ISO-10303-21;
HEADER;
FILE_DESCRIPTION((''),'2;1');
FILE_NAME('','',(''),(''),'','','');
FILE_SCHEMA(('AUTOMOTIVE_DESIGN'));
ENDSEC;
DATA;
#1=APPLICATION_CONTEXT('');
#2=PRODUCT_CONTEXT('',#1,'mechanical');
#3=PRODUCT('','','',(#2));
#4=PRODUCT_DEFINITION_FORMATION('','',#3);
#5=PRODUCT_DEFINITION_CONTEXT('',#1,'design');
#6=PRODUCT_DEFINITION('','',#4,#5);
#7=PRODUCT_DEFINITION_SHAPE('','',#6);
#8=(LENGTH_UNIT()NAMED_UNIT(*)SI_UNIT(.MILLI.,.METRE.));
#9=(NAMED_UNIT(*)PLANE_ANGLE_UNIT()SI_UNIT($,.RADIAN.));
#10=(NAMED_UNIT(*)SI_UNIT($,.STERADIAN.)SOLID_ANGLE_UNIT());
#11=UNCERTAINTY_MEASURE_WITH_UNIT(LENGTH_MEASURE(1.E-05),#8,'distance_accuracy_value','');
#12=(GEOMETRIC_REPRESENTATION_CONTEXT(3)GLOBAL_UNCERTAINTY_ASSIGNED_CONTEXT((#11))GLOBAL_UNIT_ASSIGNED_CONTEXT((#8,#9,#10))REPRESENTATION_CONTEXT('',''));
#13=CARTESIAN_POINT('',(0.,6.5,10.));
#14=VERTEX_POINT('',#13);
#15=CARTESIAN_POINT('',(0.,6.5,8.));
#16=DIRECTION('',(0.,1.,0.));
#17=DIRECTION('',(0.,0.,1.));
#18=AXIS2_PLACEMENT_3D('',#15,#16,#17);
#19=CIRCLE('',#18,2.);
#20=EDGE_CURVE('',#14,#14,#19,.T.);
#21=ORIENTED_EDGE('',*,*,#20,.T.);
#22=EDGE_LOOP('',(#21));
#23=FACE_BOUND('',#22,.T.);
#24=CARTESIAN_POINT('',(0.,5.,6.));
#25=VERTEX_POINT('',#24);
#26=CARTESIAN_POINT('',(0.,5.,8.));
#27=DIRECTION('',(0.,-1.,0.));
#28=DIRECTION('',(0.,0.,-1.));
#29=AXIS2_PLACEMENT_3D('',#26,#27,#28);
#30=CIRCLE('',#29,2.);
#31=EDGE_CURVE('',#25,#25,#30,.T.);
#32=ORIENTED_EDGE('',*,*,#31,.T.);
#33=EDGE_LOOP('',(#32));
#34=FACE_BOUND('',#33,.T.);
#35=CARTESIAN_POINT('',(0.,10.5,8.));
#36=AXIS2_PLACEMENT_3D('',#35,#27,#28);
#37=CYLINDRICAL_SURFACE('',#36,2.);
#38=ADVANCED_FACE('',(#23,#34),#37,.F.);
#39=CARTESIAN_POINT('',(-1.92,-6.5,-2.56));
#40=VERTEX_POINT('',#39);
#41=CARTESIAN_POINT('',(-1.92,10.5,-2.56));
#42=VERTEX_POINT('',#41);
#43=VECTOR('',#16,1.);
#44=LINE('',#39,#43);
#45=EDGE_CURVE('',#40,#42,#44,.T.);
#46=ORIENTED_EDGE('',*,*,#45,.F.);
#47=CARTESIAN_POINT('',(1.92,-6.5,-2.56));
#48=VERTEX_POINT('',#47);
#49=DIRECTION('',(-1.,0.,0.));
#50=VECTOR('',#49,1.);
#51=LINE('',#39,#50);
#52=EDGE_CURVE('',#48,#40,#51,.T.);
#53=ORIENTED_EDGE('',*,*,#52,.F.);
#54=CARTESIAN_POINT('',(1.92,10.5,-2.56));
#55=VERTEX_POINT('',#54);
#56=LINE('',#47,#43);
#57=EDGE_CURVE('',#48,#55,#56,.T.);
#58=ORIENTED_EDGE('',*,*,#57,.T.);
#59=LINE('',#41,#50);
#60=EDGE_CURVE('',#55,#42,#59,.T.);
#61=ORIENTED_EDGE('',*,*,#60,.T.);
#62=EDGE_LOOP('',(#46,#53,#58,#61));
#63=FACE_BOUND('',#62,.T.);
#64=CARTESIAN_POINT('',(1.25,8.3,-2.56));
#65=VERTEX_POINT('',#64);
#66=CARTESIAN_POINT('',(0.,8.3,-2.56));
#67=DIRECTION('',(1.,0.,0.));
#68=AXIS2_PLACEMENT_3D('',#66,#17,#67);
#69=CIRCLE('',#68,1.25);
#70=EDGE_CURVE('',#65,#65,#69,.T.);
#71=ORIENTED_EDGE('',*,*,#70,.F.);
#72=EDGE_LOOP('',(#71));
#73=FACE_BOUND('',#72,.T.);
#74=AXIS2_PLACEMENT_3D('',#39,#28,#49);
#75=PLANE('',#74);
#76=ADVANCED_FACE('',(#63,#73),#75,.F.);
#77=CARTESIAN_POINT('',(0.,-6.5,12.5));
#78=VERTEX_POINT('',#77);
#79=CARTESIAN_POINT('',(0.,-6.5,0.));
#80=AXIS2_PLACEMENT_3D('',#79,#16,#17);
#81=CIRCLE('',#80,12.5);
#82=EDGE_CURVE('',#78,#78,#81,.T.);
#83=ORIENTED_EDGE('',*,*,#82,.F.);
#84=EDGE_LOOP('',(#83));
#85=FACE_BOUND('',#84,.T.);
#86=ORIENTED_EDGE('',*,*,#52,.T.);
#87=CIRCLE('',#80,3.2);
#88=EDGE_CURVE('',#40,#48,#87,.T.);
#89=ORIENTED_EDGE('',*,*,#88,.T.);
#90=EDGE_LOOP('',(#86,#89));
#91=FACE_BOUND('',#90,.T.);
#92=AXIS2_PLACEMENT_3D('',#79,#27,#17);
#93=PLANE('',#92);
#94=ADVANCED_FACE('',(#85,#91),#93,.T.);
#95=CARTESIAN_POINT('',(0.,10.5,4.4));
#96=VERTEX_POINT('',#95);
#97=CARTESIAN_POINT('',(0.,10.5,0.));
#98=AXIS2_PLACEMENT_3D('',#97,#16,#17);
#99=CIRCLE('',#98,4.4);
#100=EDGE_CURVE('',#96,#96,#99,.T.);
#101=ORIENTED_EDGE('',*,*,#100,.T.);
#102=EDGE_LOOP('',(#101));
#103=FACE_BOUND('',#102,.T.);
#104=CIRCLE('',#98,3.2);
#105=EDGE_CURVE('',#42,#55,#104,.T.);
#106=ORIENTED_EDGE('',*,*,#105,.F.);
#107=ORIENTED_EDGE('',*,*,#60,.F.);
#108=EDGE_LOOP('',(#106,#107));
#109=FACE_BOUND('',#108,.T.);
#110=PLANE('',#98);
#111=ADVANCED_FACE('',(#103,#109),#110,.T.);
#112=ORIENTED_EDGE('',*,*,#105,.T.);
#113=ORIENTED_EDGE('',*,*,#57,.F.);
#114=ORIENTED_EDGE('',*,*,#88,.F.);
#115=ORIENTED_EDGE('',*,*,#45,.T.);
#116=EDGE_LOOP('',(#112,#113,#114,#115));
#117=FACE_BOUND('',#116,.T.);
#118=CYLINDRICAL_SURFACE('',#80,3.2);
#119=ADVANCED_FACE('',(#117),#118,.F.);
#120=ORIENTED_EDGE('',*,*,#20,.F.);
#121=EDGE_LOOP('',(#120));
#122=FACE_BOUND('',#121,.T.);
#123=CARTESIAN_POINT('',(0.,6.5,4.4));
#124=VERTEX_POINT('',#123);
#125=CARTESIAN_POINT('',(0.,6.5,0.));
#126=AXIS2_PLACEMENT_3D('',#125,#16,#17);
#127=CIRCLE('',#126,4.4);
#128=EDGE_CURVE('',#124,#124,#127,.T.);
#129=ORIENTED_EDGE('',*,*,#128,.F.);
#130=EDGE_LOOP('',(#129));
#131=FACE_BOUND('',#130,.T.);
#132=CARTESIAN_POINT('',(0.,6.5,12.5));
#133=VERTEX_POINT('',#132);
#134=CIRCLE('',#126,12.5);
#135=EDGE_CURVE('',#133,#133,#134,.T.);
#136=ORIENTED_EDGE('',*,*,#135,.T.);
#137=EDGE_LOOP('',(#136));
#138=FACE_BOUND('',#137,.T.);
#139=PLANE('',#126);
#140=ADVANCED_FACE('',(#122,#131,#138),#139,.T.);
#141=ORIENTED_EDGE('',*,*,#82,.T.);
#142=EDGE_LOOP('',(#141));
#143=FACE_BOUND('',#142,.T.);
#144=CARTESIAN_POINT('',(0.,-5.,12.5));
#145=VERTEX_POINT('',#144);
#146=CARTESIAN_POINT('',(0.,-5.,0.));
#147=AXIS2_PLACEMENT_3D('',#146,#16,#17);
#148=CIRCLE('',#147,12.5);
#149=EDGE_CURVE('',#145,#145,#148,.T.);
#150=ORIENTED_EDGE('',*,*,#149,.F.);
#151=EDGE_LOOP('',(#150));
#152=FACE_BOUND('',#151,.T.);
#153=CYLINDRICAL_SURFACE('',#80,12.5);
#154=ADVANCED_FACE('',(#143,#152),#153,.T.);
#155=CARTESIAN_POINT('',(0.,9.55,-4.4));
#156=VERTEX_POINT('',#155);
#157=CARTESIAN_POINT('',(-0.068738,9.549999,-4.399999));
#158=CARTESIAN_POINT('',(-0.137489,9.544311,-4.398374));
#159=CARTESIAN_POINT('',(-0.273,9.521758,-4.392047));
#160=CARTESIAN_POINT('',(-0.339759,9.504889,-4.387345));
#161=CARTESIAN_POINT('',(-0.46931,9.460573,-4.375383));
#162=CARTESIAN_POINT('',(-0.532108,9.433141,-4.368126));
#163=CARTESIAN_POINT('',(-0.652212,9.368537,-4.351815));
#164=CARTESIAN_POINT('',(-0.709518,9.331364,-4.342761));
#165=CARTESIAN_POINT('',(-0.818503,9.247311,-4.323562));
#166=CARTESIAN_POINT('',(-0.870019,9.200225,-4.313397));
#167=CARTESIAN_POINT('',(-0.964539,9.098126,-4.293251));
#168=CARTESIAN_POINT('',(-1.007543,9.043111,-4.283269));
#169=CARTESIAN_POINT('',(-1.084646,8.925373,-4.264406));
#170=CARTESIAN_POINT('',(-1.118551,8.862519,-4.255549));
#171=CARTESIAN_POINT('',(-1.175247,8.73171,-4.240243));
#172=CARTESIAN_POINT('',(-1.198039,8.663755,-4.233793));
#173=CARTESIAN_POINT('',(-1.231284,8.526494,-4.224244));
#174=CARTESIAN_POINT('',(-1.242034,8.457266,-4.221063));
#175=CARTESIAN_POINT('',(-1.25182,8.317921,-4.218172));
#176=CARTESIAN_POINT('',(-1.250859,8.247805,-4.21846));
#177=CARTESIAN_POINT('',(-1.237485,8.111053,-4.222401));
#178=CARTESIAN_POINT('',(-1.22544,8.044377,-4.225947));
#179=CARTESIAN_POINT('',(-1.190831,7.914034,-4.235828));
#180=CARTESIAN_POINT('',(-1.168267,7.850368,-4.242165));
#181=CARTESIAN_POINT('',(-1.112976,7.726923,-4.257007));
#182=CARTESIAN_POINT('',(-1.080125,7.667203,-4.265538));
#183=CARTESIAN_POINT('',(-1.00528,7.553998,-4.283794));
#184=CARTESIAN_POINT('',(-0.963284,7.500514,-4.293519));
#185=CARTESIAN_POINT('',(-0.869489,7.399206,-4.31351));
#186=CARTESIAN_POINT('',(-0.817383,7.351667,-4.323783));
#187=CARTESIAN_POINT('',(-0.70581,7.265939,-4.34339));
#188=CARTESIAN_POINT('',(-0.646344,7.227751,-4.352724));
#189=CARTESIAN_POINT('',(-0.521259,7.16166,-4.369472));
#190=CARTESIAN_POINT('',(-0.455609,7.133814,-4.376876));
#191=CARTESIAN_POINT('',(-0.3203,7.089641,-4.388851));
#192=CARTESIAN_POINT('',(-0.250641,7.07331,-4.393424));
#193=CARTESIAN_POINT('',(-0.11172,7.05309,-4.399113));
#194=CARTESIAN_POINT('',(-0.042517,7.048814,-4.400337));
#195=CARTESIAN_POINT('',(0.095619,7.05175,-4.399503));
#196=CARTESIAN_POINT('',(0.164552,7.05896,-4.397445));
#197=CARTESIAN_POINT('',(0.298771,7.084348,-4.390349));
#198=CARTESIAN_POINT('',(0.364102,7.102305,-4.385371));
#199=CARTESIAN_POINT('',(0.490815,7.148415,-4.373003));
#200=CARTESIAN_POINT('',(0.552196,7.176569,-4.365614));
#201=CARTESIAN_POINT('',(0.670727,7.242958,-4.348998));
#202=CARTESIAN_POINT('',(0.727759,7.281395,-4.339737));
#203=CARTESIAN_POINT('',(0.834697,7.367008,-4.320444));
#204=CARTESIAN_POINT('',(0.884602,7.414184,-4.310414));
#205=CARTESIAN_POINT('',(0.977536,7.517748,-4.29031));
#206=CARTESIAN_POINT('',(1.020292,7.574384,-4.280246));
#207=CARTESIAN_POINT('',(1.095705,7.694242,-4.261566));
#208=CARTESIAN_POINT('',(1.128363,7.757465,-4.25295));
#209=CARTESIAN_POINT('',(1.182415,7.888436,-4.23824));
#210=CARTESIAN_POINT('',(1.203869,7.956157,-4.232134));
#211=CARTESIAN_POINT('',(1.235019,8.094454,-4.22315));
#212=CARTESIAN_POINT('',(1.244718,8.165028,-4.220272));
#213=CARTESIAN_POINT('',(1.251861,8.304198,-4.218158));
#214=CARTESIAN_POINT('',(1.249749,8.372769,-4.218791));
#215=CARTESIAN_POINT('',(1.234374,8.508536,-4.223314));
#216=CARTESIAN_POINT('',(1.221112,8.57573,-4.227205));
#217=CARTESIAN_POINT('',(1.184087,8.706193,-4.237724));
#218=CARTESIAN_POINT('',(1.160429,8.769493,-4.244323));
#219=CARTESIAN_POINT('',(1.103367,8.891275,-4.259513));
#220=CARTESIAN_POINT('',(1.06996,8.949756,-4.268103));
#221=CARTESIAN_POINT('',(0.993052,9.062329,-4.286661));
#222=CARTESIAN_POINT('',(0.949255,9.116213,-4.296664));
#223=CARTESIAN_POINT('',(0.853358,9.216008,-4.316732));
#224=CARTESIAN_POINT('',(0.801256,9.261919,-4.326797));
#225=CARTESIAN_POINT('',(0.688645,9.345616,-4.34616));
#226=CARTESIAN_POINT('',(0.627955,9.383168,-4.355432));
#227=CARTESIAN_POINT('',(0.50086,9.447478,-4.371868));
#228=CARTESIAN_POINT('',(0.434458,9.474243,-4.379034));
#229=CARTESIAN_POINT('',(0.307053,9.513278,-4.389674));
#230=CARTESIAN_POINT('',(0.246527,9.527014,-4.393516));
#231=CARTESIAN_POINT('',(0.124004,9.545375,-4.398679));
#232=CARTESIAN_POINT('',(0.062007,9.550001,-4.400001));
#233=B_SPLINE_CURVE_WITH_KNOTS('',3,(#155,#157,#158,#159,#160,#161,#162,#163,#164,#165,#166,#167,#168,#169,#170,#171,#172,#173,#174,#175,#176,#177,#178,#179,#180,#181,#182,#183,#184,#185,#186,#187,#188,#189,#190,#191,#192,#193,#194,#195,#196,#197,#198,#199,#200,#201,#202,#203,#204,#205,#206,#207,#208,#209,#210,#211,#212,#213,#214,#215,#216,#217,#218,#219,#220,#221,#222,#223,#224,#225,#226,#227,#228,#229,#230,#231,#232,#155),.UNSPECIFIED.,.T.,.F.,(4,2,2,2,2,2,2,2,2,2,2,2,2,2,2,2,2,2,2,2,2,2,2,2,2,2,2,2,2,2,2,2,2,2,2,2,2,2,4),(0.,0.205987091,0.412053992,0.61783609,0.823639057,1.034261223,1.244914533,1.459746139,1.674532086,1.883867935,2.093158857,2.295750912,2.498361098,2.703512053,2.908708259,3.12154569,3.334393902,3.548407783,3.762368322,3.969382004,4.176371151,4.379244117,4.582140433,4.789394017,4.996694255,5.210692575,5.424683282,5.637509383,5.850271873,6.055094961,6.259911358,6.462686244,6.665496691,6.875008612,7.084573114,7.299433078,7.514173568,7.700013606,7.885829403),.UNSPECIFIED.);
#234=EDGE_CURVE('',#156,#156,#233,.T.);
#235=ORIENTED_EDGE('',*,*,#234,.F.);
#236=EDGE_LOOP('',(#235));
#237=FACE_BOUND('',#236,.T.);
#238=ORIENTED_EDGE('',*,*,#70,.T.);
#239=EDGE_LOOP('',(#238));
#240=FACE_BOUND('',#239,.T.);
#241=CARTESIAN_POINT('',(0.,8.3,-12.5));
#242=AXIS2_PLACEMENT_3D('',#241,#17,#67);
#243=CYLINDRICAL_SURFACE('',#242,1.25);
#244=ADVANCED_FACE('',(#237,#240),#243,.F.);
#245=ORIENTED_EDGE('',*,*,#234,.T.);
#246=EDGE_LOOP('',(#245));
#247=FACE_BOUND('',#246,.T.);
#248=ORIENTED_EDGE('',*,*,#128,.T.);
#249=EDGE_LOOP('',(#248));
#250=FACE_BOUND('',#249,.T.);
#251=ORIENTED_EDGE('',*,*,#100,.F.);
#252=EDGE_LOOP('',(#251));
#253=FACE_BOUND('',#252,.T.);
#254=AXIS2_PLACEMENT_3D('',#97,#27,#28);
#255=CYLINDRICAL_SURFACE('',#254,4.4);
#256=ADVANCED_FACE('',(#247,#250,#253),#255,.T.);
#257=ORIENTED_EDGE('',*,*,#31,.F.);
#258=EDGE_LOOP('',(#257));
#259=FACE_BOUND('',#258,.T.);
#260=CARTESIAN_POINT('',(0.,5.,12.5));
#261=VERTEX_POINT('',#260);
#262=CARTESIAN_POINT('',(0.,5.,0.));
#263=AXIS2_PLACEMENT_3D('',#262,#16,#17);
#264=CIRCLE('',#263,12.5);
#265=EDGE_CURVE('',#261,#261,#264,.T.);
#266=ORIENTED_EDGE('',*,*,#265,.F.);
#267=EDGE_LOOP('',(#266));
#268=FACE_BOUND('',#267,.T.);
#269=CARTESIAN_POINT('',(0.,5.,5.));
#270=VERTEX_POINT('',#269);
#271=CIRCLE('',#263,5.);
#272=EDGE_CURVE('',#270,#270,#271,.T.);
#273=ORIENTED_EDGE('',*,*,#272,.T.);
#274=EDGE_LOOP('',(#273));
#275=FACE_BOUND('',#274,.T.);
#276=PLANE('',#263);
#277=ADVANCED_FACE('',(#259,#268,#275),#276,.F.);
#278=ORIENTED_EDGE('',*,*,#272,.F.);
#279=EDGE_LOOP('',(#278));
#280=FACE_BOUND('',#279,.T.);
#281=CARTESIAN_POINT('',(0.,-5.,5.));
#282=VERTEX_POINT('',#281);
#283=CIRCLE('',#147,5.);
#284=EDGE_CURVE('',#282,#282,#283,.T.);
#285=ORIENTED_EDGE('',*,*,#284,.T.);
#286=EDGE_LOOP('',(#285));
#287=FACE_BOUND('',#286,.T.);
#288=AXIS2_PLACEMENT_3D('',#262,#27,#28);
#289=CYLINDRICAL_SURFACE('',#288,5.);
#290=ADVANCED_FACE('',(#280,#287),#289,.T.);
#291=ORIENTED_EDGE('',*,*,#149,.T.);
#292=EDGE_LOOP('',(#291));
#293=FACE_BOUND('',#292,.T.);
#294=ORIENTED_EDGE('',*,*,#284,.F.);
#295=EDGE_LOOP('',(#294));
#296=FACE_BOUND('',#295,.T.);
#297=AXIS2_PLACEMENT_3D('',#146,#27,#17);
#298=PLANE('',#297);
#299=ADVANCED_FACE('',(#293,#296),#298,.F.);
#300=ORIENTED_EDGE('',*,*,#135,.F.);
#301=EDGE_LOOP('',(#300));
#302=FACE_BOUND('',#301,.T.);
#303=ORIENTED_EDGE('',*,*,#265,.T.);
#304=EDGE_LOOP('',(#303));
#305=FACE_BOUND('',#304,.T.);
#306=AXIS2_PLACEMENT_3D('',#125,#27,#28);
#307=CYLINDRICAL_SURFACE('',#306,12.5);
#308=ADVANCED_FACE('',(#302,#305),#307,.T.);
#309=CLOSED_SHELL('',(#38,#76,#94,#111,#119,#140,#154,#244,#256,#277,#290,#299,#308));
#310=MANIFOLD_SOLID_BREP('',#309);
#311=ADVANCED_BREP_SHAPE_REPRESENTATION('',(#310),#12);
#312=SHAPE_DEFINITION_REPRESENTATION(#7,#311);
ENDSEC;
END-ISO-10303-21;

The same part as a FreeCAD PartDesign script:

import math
import FreeCAD as App
import Part
import Sketcher

V = App.Vector

doc = App.newDocument("Part")
body = doc.addObject("PartDesign::Body", "Body")

# Sketch on XZ plane
sketch1 = doc.addObject("Sketcher::SketchObject", "Sketch")
body.addObject(sketch1)
sketch1.AttachmentSupport = (doc.XZ_Plane, [""])
sketch1.MapMode = "FlatFace"
sketch1.addGeometry(Part.Circle(V(0, 0, 0), V(0, 0, 1), 5), False)
sketch1.addConstraint([
    Sketcher.Constraint("Coincident", 0, 3, -1, 1),
    Sketcher.Constraint("Diameter", 0, 10.0),
])
pad1 = doc.addObject("PartDesign::Pad", "Pad")
body.addObject(pad1)
pad1.Profile = sketch1
pad1.Length = 10
pad1.Midplane = True

# Sketch on XZ plane
sketch2 = doc.addObject("Sketcher::SketchObject", "Sketch001")
body.addObject(sketch2)
sketch2.AttachmentSupport = (doc.XZ_Plane, [""])
sketch2.MapMode = "FlatFace"
sketch2.AttachmentOffset = App.Placement(V(0, 0, -5), App.Rotation())
sketch2.addGeometry(Part.Circle(V(0, 0, 0), V(0, 0, 1), 12), False)
sketch2.addConstraint([
    Sketcher.Constraint("Coincident", 0, 3, -1, 1),
    Sketcher.Constraint("Diameter", 0, 25.0),
])
pad2 = doc.addObject("PartDesign::Pad", "Pad001")
body.addObject(pad2)
pad2.Profile = sketch2
pad2.Length = 1.5
pad2.Reversed = True
doc.recompute()

mirrored = doc.addObject("PartDesign::Mirrored", "Mirrored")
body.addObject(mirrored)
mirrored.Originals = [pad2]
mirrored.MirrorPlane = (doc.XZ_Plane, [""])
body.Tip = mirrored

# Sketch on XZ plane
sketch3 = doc.addObject("Sketcher::SketchObject", "Sketch002")
body.addObject(sketch3)
sketch3.AttachmentSupport = (doc.XZ_Plane, [""])
sketch3.MapMode = "FlatFace"
sketch3.AttachmentOffset = App.Placement(V(0, 0, -6.5), App.Rotation())
sketch3.addGeometry([
    Part.LineSegment(V(1.9, -2.6, 0), V(-1.9, -2.6, 0)),
    Part.ArcOfCircle(Part.Circle(V(0, 0, 0), V(0, 0, 1), 3.2), math.radians(-53), math.radians(233)),
], False)
sketch3.addConstraint([
    Sketcher.Constraint("Coincident", 0, 1, 1, 1),
    Sketcher.Constraint("Coincident", 1, 2, 0, 2),
    Sketcher.Constraint("Horizontal", 0),
    Sketcher.Constraint("Coincident", 1, 3, -1, 1),
    Sketcher.Constraint("Radius", 1, 3.2),
    Sketcher.Constraint("DistanceX", 0, 2, 0, 1, 3.84),
])
pocket1 = doc.addObject("PartDesign::Pocket", "Pocket")
body.addObject(pocket1)
pocket1.Profile = sketch3
pocket1.Type = "ThroughAll"
pocket1.Midplane = True

# Sketch on XZ plane
sketch4 = doc.addObject("Sketcher::SketchObject", "Sketch003")
body.addObject(sketch4)
sketch4.AttachmentSupport = (doc.XZ_Plane, [""])
sketch4.MapMode = "FlatFace"
sketch4.AttachmentOffset = App.Placement(V(0, 0, -6.5), App.Rotation())
sketch4.addGeometry(Part.Circle(V(0, 0, 0), V(0, 0, 1), 4.4), False)
sketch4.addConstraint([
    Sketcher.Constraint("Coincident", 0, 3, -1, 1),
    Sketcher.Constraint("Diameter", 0, 8.8),
])
pad3 = doc.addObject("PartDesign::Pad", "Pad002")
body.addObject(pad3)
pad3.Profile = sketch4
pad3.Length = 4
pad3.Reversed = True

# Sketch on XZ plane
sketch5 = doc.addObject("Sketcher::SketchObject", "Sketch004")
body.addObject(sketch5)
sketch5.AttachmentSupport = (doc.XZ_Plane, [""])
sketch5.MapMode = "FlatFace"
sketch5.AttachmentOffset = App.Placement(V(0, 0, -10.5), App.Rotation())
sketch5.addGeometry([
    Part.LineSegment(V(1.9, -2.6, 0), V(-1.9, -2.6, 0)),
    Part.ArcOfCircle(Part.Circle(V(0, 0, 0), V(0, 0, 1), 3.2), math.radians(-53), math.radians(233)),
], False)
sketch5.addConstraint([
    Sketcher.Constraint("Coincident", 0, 1, 1, 1),
    Sketcher.Constraint("Coincident", 1, 2, 0, 2),
    Sketcher.Constraint("Horizontal", 0),
    Sketcher.Constraint("Coincident", 1, 3, -1, 1),
    Sketcher.Constraint("Radius", 1, 3.2),
    Sketcher.Constraint("DistanceX", 0, 2, 0, 1, 3.84),
])
pocket2 = doc.addObject("PartDesign::Pocket", "Pocket001")
body.addObject(pocket2)
pocket2.Profile = sketch5
pocket2.Type = "ThroughAll"
pocket2.Reversed = True

# Sketch on XY plane
sketch6 = doc.addObject("Sketcher::SketchObject", "Sketch005")
body.addObject(sketch6)
sketch6.AttachmentSupport = (doc.XY_Plane, [""])
sketch6.MapMode = "FlatFace"
sketch6.AttachmentOffset = App.Placement(V(0, 0, -2.56), App.Rotation())
sketch6.addGeometry(Part.Circle(V(0, 8.3, 0), V(0, 0, 1), 1.2), False)
sketch6.addConstraint([
    Sketcher.Constraint("PointOnObject", 0, 3, -2),
    Sketcher.Constraint("Diameter", 0, 2.5),
    Sketcher.Constraint("DistanceY", -1, 1, 0, 3, 8.3),
])
pocket3 = doc.addObject("PartDesign::Pocket", "Pocket002")
body.addObject(pocket3)
pocket3.Profile = sketch6
pocket3.Type = "ThroughAll"

# Sketch on XZ plane
sketch7 = doc.addObject("Sketcher::SketchObject", "Sketch006")
body.addObject(sketch7)
sketch7.AttachmentSupport = (doc.XZ_Plane, [""])
sketch7.MapMode = "FlatFace"
sketch7.AttachmentOffset = App.Placement(V(0, 0, -5), App.Rotation())
sketch7.addGeometry(Part.Circle(V(0, 8, 0), V(0, 0, 1), 2), False)
sketch7.addConstraint([
    Sketcher.Constraint("PointOnObject", 0, 3, -2),
    Sketcher.Constraint("Diameter", 0, 4.0),
    Sketcher.Constraint("DistanceY", -1, 1, 0, 3, 8.0),
])
pocket4 = doc.addObject("PartDesign::Pocket", "Pocket003")
body.addObject(pocket4)
pocket4.Profile = sketch7
pocket4.Type = "ThroughAll"

doc.recompute()
